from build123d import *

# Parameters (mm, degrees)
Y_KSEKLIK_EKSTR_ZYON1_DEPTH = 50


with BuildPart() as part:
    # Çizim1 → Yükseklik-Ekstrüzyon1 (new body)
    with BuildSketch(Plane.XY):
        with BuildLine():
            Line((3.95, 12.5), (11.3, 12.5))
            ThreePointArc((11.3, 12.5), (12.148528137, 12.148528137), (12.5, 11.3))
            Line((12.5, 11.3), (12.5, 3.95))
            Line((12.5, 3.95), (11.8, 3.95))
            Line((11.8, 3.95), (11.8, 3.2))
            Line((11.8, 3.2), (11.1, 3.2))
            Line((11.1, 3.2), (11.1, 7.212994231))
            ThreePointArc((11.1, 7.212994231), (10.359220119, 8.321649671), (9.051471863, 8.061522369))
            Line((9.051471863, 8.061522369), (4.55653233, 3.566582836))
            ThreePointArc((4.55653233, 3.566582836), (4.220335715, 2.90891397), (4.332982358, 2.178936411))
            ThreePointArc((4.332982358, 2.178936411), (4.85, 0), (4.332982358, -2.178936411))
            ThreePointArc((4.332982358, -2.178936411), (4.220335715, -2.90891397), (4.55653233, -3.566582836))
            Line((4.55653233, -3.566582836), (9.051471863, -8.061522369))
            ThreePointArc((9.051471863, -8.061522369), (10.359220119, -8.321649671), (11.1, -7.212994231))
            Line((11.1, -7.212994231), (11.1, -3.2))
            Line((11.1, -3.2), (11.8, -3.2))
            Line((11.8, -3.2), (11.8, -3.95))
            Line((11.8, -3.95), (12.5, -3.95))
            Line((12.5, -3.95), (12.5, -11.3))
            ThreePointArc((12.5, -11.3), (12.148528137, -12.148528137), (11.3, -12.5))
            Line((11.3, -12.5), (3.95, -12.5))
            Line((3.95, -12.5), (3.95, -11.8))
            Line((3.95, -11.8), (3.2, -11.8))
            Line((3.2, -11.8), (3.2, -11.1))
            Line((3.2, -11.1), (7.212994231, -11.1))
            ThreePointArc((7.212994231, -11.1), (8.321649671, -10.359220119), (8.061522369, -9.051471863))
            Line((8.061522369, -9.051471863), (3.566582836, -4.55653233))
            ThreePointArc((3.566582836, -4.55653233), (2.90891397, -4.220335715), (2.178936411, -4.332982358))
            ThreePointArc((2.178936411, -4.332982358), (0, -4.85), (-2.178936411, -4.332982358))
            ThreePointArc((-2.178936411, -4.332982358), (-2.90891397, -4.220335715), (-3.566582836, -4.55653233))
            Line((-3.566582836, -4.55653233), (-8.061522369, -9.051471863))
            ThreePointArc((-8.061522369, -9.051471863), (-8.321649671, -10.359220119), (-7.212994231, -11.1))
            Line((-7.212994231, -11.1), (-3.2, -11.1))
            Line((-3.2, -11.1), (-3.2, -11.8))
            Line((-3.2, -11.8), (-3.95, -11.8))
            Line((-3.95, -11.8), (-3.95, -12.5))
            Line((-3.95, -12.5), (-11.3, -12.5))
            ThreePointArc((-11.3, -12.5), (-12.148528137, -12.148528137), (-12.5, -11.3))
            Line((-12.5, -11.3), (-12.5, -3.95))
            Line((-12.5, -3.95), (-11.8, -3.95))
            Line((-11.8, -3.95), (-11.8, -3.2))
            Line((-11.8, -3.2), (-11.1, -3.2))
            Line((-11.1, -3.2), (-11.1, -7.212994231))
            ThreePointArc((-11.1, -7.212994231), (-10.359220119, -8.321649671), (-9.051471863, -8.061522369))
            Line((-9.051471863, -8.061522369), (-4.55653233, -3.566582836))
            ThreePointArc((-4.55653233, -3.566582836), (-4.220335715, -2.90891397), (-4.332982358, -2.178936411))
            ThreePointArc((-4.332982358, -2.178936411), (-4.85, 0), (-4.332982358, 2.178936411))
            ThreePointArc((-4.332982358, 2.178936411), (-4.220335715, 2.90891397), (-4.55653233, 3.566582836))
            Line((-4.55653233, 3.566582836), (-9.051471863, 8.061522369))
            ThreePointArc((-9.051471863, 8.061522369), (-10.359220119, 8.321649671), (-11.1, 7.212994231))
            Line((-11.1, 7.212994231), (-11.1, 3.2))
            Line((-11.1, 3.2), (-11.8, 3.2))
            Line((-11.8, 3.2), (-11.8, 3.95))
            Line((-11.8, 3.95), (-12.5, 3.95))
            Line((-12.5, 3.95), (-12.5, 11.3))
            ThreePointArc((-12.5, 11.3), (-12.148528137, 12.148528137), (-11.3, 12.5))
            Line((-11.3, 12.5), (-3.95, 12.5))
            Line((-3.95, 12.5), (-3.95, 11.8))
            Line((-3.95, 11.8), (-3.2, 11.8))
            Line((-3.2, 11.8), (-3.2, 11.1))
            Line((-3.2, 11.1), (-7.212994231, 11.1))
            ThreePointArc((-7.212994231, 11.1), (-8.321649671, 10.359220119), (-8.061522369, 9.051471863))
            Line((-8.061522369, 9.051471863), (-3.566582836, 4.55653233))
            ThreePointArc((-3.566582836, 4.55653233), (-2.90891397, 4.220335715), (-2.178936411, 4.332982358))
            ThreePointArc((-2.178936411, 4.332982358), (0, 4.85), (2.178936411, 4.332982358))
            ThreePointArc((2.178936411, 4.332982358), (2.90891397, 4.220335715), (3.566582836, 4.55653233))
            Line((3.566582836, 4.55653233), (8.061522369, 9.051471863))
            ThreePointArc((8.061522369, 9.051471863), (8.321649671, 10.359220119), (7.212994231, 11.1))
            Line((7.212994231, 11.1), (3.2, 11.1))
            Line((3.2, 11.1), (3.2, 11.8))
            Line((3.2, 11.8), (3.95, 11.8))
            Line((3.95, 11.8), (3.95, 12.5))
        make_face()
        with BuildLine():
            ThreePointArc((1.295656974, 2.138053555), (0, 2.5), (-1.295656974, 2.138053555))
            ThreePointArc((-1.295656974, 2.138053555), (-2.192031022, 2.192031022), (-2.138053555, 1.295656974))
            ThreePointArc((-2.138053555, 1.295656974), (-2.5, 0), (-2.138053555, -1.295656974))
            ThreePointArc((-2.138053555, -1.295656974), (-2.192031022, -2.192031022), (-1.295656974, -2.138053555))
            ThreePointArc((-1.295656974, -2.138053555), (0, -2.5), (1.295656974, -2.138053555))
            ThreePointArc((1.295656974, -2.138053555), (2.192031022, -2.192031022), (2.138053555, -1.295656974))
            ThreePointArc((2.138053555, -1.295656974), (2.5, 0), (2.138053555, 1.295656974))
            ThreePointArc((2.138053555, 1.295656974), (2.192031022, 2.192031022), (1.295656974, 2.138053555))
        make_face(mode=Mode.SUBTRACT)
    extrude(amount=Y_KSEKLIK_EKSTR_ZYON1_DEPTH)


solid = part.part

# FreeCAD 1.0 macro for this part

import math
import FreeCAD as App
import Part
import Sketcher
from FreeCAD import Vector
Q = App.Units.Quantity

doc = App.newDocument("Part")
body = doc.addObject("PartDesign::Body", "Body")

# Sketch on XY plane
sketch1 = body.newObject("Sketcher::SketchObject", "Sketch")
sketch1.AttachmentSupport = (doc.getObject("XY_Plane"), [""])
sketch1.MapMode = "FlatFace"
sketch1.addGeometry([
    Part.LineSegment(Vector(11.3, 12.5, 0), Vector(4, 12.5, 0)),  # 0
    Part.LineSegment(Vector(4, 12.5, 0), Vector(4, 11.8, 0)),  # 1
    Part.LineSegment(Vector(4, 11.8, 0), Vector(3.2, 11.8, 0)),  # 2
    Part.LineSegment(Vector(3.2, 11.8, 0), Vector(3.2, 11.1, 0)),  # 3
    Part.LineSegment(Vector(3.2, 11.1, 0), Vector(7.2, 11.1, 0)),  # 4
    Part.ArcOfCircle(Part.Circle(Vector(7.2, 9.9, 0), Vector(0, 0, 1), 1.2), math.radians(-45), math.radians(90)),  # 5
    Part.LineSegment(Vector(8.1, 9.1, 0), Vector(3.6, 4.6, 0)),  # 6
    Part.ArcOfCircle(Part.Circle(Vector(2.7, 5.4, 0), Vector(0, 0, 1), 1.2), math.radians(-117), math.radians(-45)),  # 7
    Part.ArcOfCircle(Part.Circle(Vector(0, 0, 0), Vector(0, 0, 1), 4.8), math.radians(63), math.radians(117)),  # 8
    Part.ArcOfCircle(Part.Circle(Vector(-2.7, 5.4, 0), Vector(0, 0, 1), 1.2), math.radians(-135), math.radians(-63)),  # 9
    Part.LineSegment(Vector(-3.6, 4.6, 0), Vector(-8.1, 9.1, 0)),  # 10
    Part.ArcOfCircle(Part.Circle(Vector(-7.2, 9.9, 0), Vector(0, 0, 1), 1.2), math.radians(90), math.radians(225)),  # 11
    Part.LineSegment(Vector(-7.2, 11.1, 0), Vector(-3.2, 11.1, 0)),  # 12
    Part.LineSegment(Vector(-3.2, 11.1, 0), Vector(-3.2, 11.8, 0)),  # 13
    Part.LineSegment(Vector(-3.2, 11.8, 0), Vector(-4, 11.8, 0)),  # 14
    Part.LineSegment(Vector(-4, 11.8, 0), Vector(-4, 12.5, 0)),  # 15
    Part.LineSegment(Vector(-4, 12.5, 0), Vector(-11.3, 12.5, 0)),  # 16
    Part.ArcOfCircle(Part.Circle(Vector(-11.3, 11.3, 0), Vector(0, 0, 1), 1.2), math.radians(90), math.radians(180)),  # 17
    Part.LineSegment(Vector(-12.5, 11.3, 0), Vector(-12.5, 4, 0)),  # 18
    Part.LineSegment(Vector(-12.5, 4, 0), Vector(-11.8, 4, 0)),  # 19
    Part.LineSegment(Vector(-11.8, 4, 0), Vector(-11.8, 3.2, 0)),  # 20
    Part.LineSegment(Vector(-11.8, 3.2, 0), Vector(-11.1, 3.2, 0)),  # 21
    Part.LineSegment(Vector(-11.1, 3.2, 0), Vector(-11.1, 7.2, 0)),  # 22
    Part.ArcOfCircle(Part.Circle(Vector(-9.9, 7.2, 0), Vector(0, 0, 1), 1.2), math.radians(45), math.radians(180)),  # 23
    Part.LineSegment(Vector(-9.1, 8.1, 0), Vector(-4.6, 3.6, 0)),  # 24
    Part.ArcOfCircle(Part.Circle(Vector(-5.4, 2.7, 0), Vector(0, 0, 1), 1.2), math.radians(-27), math.radians(45)),  # 25
    Part.ArcOfCircle(Part.Circle(Vector(0, 0, 0), Vector(0, 0, 1), 4.8), math.radians(153), math.radians(207)),  # 26
    Part.ArcOfCircle(Part.Circle(Vector(-5.4, -2.7, 0), Vector(0, 0, 1), 1.2), math.radians(-45), math.radians(27)),  # 27
    Part.LineSegment(Vector(-4.6, -3.6, 0), Vector(-9.1, -8.1, 0)),  # 28
    Part.ArcOfCircle(Part.Circle(Vector(-9.9, -7.2, 0), Vector(0, 0, 1), 1.2), math.radians(180), math.radians(315)),  # 29
    Part.LineSegment(Vector(-11.1, -7.2, 0), Vector(-11.1, -3.2, 0)),  # 30
    Part.LineSegment(Vector(-11.1, -3.2, 0), Vector(-11.8, -3.2, 0)),  # 31
    Part.LineSegment(Vector(-11.8, -3.2, 0), Vector(-11.8, -4, 0)),  # 32
    Part.LineSegment(Vector(-11.8, -4, 0), Vector(-12.5, -4, 0)),  # 33
    Part.LineSegment(Vector(-12.5, -4, 0), Vector(-12.5, -11.3, 0)),  # 34
    Part.ArcOfCircle(Part.Circle(Vector(-11.3, -11.3, 0), Vector(0, 0, 1), 1.2), math.radians(-180), math.radians(-90)),  # 35
    Part.LineSegment(Vector(-11.3, -12.5, 0), Vector(-4, -12.5, 0)),  # 36
    Part.LineSegment(Vector(-4, -12.5, 0), Vector(-4, -11.8, 0)),  # 37
    Part.LineSegment(Vector(-4, -11.8, 0), Vector(-3.2, -11.8, 0)),  # 38
    Part.LineSegment(Vector(-3.2, -11.8, 0), Vector(-3.2, -11.1, 0)),  # 39
    Part.LineSegment(Vector(-3.2, -11.1, 0), Vector(-7.2, -11.1, 0)),  # 40
    Part.ArcOfCircle(Part.Circle(Vector(-7.2, -9.9, 0), Vector(0, 0, 1), 1.2), math.radians(135), math.radians(270)),  # 41
    Part.LineSegment(Vector(-8.1, -9.1, 0), Vector(-3.6, -4.6, 0)),  # 42
    Part.ArcOfCircle(Part.Circle(Vector(-2.7, -5.4, 0), Vector(0, 0, 1), 1.2), math.radians(63), math.radians(135)),  # 43
    Part.ArcOfCircle(Part.Circle(Vector(0, 0, 0), Vector(0, 0, 1), 4.8), math.radians(-117), math.radians(-63)),  # 44
    Part.ArcOfCircle(Part.Circle(Vector(2.7, -5.4, 0), Vector(0, 0, 1), 1.2), math.radians(45), math.radians(117)),  # 45
    Part.LineSegment(Vector(3.6, -4.6, 0), Vector(8.1, -9.1, 0)),  # 46
    Part.ArcOfCircle(Part.Circle(Vector(7.2, -9.9, 0), Vector(0, 0, 1), 1.2), math.radians(-90), math.radians(45)),  # 47
    Part.LineSegment(Vector(7.2, -11.1, 0), Vector(3.2, -11.1, 0)),  # 48
    Part.LineSegment(Vector(3.2, -11.1, 0), Vector(3.2, -11.8, 0)),  # 49
    Part.LineSegment(Vector(3.2, -11.8, 0), Vector(4, -11.8, 0)),  # 50
    Part.LineSegment(Vector(4, -11.8, 0), Vector(4, -12.5, 0)),  # 51
    Part.LineSegment(Vector(4, -12.5, 0), Vector(11.3, -12.5, 0)),  # 52
    Part.ArcOfCircle(Part.Circle(Vector(11.3, -11.3, 0), Vector(0, 0, 1), 1.2), math.radians(-90), math.radians(0)),  # 53
    Part.LineSegment(Vector(12.5, -11.3, 0), Vector(12.5, -4, 0)),  # 54
    Part.LineSegment(Vector(12.5, -4, 0), Vector(11.8, -4, 0)),  # 55
    Part.LineSegment(Vector(11.8, -4, 0), Vector(11.8, -3.2, 0)),  # 56
    Part.LineSegment(Vector(11.8, -3.2, 0), Vector(11.1, -3.2, 0)),  # 57
    Part.LineSegment(Vector(11.1, -3.2, 0), Vector(11.1, -7.2, 0)),  # 58
    Part.ArcOfCircle(Part.Circle(Vector(9.9, -7.2, 0), Vector(0, 0, 1), 1.2), math.radians(-135), math.radians(0)),  # 59
    Part.LineSegment(Vector(9.1, -8.1, 0), Vector(4.6, -3.6, 0)),  # 60
    Part.ArcOfCircle(Part.Circle(Vector(5.4, -2.7, 0), Vector(0, 0, 1), 1.2), math.radians(153), math.radians(225)),  # 61
    Part.ArcOfCircle(Part.Circle(Vector(0, 0, 0), Vector(0, 0, 1), 4.8), math.radians(-27), math.radians(27)),  # 62
    Part.ArcOfCircle(Part.Circle(Vector(5.4, 2.7, 0), Vector(0, 0, 1), 1.2), math.radians(135), math.radians(207)),  # 63
    Part.LineSegment(Vector(4.6, 3.6, 0), Vector(9.1, 8.1, 0)),  # 64
    Part.ArcOfCircle(Part.Circle(Vector(9.9, 7.2, 0), Vector(0, 0, 1), 1.2), math.radians(0), math.radians(135)),  # 65
    Part.LineSegment(Vector(11.1, 7.2, 0), Vector(11.1, 3.2, 0)),  # 66
    Part.LineSegment(Vector(11.1, 3.2, 0), Vector(11.8, 3.2, 0)),  # 67
    Part.LineSegment(Vector(11.8, 3.2, 0), Vector(11.8, 4, 0)),  # 68
    Part.LineSegment(Vector(11.8, 4, 0), Vector(12.5, 4, 0)),  # 69
    Part.LineSegment(Vector(12.5, 4, 0), Vector(12.5, 11.3, 0)),  # 70
    Part.ArcOfCircle(Part.Circle(Vector(11.3, 11.3, 0), Vector(0, 0, 1), 1.2), math.radians(0), math.radians(90)),  # 71
    Part.ArcOfCircle(Part.Circle(Vector(1.8, 1.8, 0), Vector(0, 0, 1), 0.6), math.radians(-52), math.radians(142)),  # 72
    Part.ArcOfCircle(Part.Circle(Vector(0, 0, 0), Vector(0, 0, 1), 2.5), math.radians(-31), math.radians(31)),  # 73
    Part.ArcOfCircle(Part.Circle(Vector(1.8, -1.8, 0), Vector(0, 0, 1), 0.6), math.radians(-142), math.radians(52)),  # 74
    Part.ArcOfCircle(Part.Circle(Vector(0, 0, 0), Vector(0, 0, 1), 2.5), math.radians(-121), math.radians(-59)),  # 75
    Part.ArcOfCircle(Part.Circle(Vector(-1.8, -1.8, 0), Vector(0, 0, 1), 0.6), math.radians(128), math.radians(322)),  # 76
    Part.ArcOfCircle(Part.Circle(Vector(0, 0, 0), Vector(0, 0, 1), 2.5), math.radians(149), math.radians(211)),  # 77
    Part.ArcOfCircle(Part.Circle(Vector(-1.8, 1.8, 0), Vector(0, 0, 1), 0.6), math.radians(38), math.radians(232)),  # 78
    Part.ArcOfCircle(Part.Circle(Vector(0, 0, 0), Vector(0, 0, 1), 2.5), math.radians(59), math.radians(121)),  # 79
], False)
sketch1.addConstraint([
    Sketcher.Constraint("Coincident", 0, 2, 1, 1),
    Sketcher.Constraint("Coincident", 1, 2, 2, 1),
    Sketcher.Constraint("Coincident", 2, 2, 3, 1),
    Sketcher.Constraint("Coincident", 3, 2, 4, 1),
    Sketcher.Constraint("Tangent", 4, 2, 5, 2),
    Sketcher.Constraint("Tangent", 5, 1, 6, 1),
    Sketcher.Constraint("Tangent", 6, 2, 7, 2),
    Sketcher.Constraint("Tangent", 7, 1, 8, 1),
    Sketcher.Constraint("Tangent", 8, 2, 9, 2),
    Sketcher.Constraint("Tangent", 9, 1, 10, 1),
    Sketcher.Constraint("Tangent", 10, 2, 11, 2),
    Sketcher.Constraint("Tangent", 11, 1, 12, 1),
    Sketcher.Constraint("Coincident", 12, 2, 13, 1),
    Sketcher.Constraint("Coincident", 13, 2, 14, 1),
    Sketcher.Constraint("Coincident", 14, 2, 15, 1),
    Sketcher.Constraint("Coincident", 15, 2, 16, 1),
    Sketcher.Constraint("Tangent", 16, 2, 17, 1),
    Sketcher.Constraint("Tangent", 17, 2, 18, 1),
    Sketcher.Constraint("Coincident", 18, 2, 19, 1),
    Sketcher.Constraint("Coincident", 19, 2, 20, 1),
    Sketcher.Constraint("Coincident", 20, 2, 21, 1),
    Sketcher.Constraint("Coincident", 21, 2, 22, 1),
    Sketcher.Constraint("Tangent", 22, 2, 23, 2),
    Sketcher.Constraint("Tangent", 23, 1, 24, 1),
    Sketcher.Constraint("Tangent", 24, 2, 25, 2),
    Sketcher.Constraint("Tangent", 25, 1, 26, 1),
    Sketcher.Constraint("Tangent", 26, 2, 27, 2),
    Sketcher.Constraint("Tangent", 27, 1, 28, 1),
    Sketcher.Constraint("Tangent", 28, 2, 29, 2),
    Sketcher.Constraint("Tangent", 29, 1, 30, 1),
    Sketcher.Constraint("Coincident", 30, 2, 31, 1),
    Sketcher.Constraint("Coincident", 31, 2, 32, 1),
    Sketcher.Constraint("Coincident", 32, 2, 33, 1),
    Sketcher.Constraint("Coincident", 33, 2, 34, 1),
    Sketcher.Constraint("Tangent", 34, 2, 35, 1),
    Sketcher.Constraint("Tangent", 35, 2, 36, 1),
    Sketcher.Constraint("Coincident", 36, 2, 37, 1),
    Sketcher.Constraint("Coincident", 37, 2, 38, 1),
    Sketcher.Constraint("Coincident", 38, 2, 39, 1),
    Sketcher.Constraint("Coincident", 39, 2, 40, 1),
    Sketcher.Constraint("Tangent", 40, 2, 41, 2),
    Sketcher.Constraint("Tangent", 41, 1, 42, 1),
    Sketcher.Constraint("Tangent", 42, 2, 43, 2),
    Sketcher.Constraint("Tangent", 43, 1, 44, 1),
    Sketcher.Constraint("Tangent", 44, 2, 45, 2),
    Sketcher.Constraint("Tangent", 45, 1, 46, 1),
    Sketcher.Constraint("Tangent", 46, 2, 47, 2),
    Sketcher.Constraint("Tangent", 47, 1, 48, 1),
    Sketcher.Constraint("Coincident", 48, 2, 49, 1),
    Sketcher.Constraint("Coincident", 49, 2, 50, 1),
    Sketcher.Constraint("Coincident", 50, 2, 51, 1),
    Sketcher.Constraint("Coincident", 51, 2, 52, 1),
    Sketcher.Constraint("Tangent", 52, 2, 53, 1),
    Sketcher.Constraint("Tangent", 53, 2, 54, 1),
    Sketcher.Constraint("Coincident", 54, 2, 55, 1),
    Sketcher.Constraint("Coincident", 55, 2, 56, 1),
    Sketcher.Constraint("Coincident", 56, 2, 57, 1),
    Sketcher.Constraint("Coincident", 57, 2, 58, 1),
    Sketcher.Constraint("Tangent", 58, 2, 59, 2),
    Sketcher.Constraint("Tangent", 59, 1, 60, 1),
    Sketcher.Constraint("Tangent", 60, 2, 61, 2),
    Sketcher.Constraint("Tangent", 61, 1, 62, 1),
    Sketcher.Constraint("Tangent", 62, 2, 63, 2),
    Sketcher.Constraint("Tangent", 63, 1, 64, 1),
    Sketcher.Constraint("Tangent", 64, 2, 65, 2),
    Sketcher.Constraint("Tangent", 65, 1, 66, 1),
    Sketcher.Constraint("Coincident", 66, 2, 67, 1),
    Sketcher.Constraint("Coincident", 67, 2, 68, 1),
    Sketcher.Constraint("Coincident", 68, 2, 69, 1),
    Sketcher.Constraint("Coincident", 69, 2, 70, 1),
    Sketcher.Constraint("Tangent", 70, 2, 71, 1),
    Sketcher.Constraint("Tangent", 71, 2, 0, 1),
    Sketcher.Constraint("Coincident", 72, 1, 73, 2),
    Sketcher.Constraint("Coincident", 73, 1, 74, 2),
    Sketcher.Constraint("Coincident", 74, 1, 75, 2),
    Sketcher.Constraint("Coincident", 75, 1, 76, 2),
    Sketcher.Constraint("Coincident", 76, 1, 77, 2),
    Sketcher.Constraint("Coincident", 77, 1, 78, 2),
    Sketcher.Constraint("Coincident", 78, 1, 79, 2),
    Sketcher.Constraint("Coincident", 79, 1, 72, 2),
    Sketcher.Constraint("Horizontal", 0),
    Sketcher.Constraint("Vertical", 1),
    Sketcher.Constraint("Horizontal", 2),
    Sketcher.Constraint("Vertical", 3),
    Sketcher.Constraint("Horizontal", 4),
    Sketcher.Constraint("Horizontal", 12),
    Sketcher.Constraint("Vertical", 13),
    Sketcher.Constraint("Horizontal", 14),
    Sketcher.Constraint("Vertical", 15),
    Sketcher.Constraint("Horizontal", 16),
    Sketcher.Constraint("Vertical", 18),
    Sketcher.Constraint("Horizontal", 19),
    Sketcher.Constraint("Vertical", 20),
    Sketcher.Constraint("Horizontal", 21),
    Sketcher.Constraint("Vertical", 22),
    Sketcher.Constraint("Vertical", 30),
    Sketcher.Constraint("Horizontal", 31),
    Sketcher.Constraint("Vertical", 32),
    Sketcher.Constraint("Horizontal", 33),
    Sketcher.Constraint("Vertical", 34),
    Sketcher.Constraint("Horizontal", 36),
    Sketcher.Constraint("Vertical", 37),
    Sketcher.Constraint("Horizontal", 38),
    Sketcher.Constraint("Vertical", 39),
    Sketcher.Constraint("Horizontal", 40),
    Sketcher.Constraint("Horizontal", 48),
    Sketcher.Constraint("Vertical", 49),
    Sketcher.Constraint("Horizontal", 50),
    Sketcher.Constraint("Vertical", 51),
    Sketcher.Constraint("Horizontal", 52),
    Sketcher.Constraint("Vertical", 54),
    Sketcher.Constraint("Horizontal", 55),
    Sketcher.Constraint("Vertical", 56),
    Sketcher.Constraint("Horizontal", 57),
    Sketcher.Constraint("Vertical", 58),
    Sketcher.Constraint("Vertical", 66),
    Sketcher.Constraint("Horizontal", 67),
    Sketcher.Constraint("Vertical", 68),
    Sketcher.Constraint("Horizontal", 69),
    Sketcher.Constraint("Vertical", 70),
    Sketcher.Constraint("Coincident", 8, 3, -1, 1),
    Sketcher.Constraint("Coincident", 26, 3, -1, 1),
    Sketcher.Constraint("Coincident", 44, 3, -1, 1),
    Sketcher.Constraint("Coincident", 62, 3, -1, 1),
    Sketcher.Constraint("Coincident", 73, 3, -1, 1),
    Sketcher.Constraint("Coincident", 75, 3, -1, 1),
    Sketcher.Constraint("Coincident", 77, 3, -1, 1),
    Sketcher.Constraint("Coincident", 79, 3, -1, 1),
    Sketcher.Constraint("Equal", 5, 7),
    Sketcher.Constraint("Equal", 7, 9),
    Sketcher.Constraint("Equal", 9, 11),
    Sketcher.Constraint("Equal", 11, 17),
    Sketcher.Constraint("Equal", 17, 23),
    Sketcher.Constraint("Equal", 23, 25),
    Sketcher.Constraint("Equal", 8, 26),
    Sketcher.Constraint("Equal", 25, 27),
    Sketcher.Constraint("Equal", 27, 29),
    Sketcher.Constraint("Equal", 29, 35),
    Sketcher.Constraint("Equal", 35, 41),
    Sketcher.Constraint("Equal", 41, 43),
    Sketcher.Constraint("Equal", 26, 44),
    Sketcher.Constraint("Equal", 43, 45),
    Sketcher.Constraint("Equal", 45, 47),
    Sketcher.Constraint("Equal", 47, 53),
    Sketcher.Constraint("Equal", 53, 59),
    Sketcher.Constraint("Equal", 59, 61),
    Sketcher.Constraint("Equal", 44, 62),
    Sketcher.Constraint("Equal", 61, 63),
    Sketcher.Constraint("Equal", 63, 65),
    Sketcher.Constraint("Equal", 65, 71),
    Sketcher.Constraint("Equal", 72, 74),
    Sketcher.Constraint("Equal", 73, 75),
    Sketcher.Constraint("Equal", 74, 76),
    Sketcher.Constraint("Equal", 75, 77),
    Sketcher.Constraint("Equal", 76, 78),
    Sketcher.Constraint("Equal", 77, 79),
    Sketcher.Constraint("Symmetric", 5, 3, 41, 3, -1, 1),
    Sketcher.Constraint("Symmetric", 11, 3, 47, 3, -1, 1),
    Sketcher.Constraint("Symmetric", 17, 3, 53, 3, -1, 1),
    Sketcher.Constraint("Symmetric", 23, 3, 59, 3, -1, 1),
    Sketcher.Constraint("Symmetric", 29, 3, 65, 3, -1, 1),
    Sketcher.Constraint("Symmetric", 35, 3, 71, 3, -1, 1),
    Sketcher.Constraint("Symmetric", 72, 3, 76, 3, -1, 1),
    Sketcher.Constraint("Symmetric", 74, 3, 78, 3, -1, 1),
    Sketcher.Constraint("Symmetric", 1, 2, 37, 2, -1, 1),
    Sketcher.Constraint("Symmetric", 13, 2, 49, 2, -1, 1),
    Sketcher.Constraint("Symmetric", 19, 2, 55, 2, -1, 1),
    Sketcher.Constraint("Symmetric", 31, 2, 67, 2, -1, 1),
    Sketcher.Constraint("Symmetric", 5, 3, 11, 3, -2),
    Sketcher.Constraint("Symmetric", 35, 3, 53, 3, -2),
    Sketcher.Constraint("Symmetric", 29, 3, 59, 3, -2),
    Sketcher.Constraint("Symmetric", 74, 3, 76, 3, -2),
    Sketcher.Constraint("Symmetric", 2, 2, 13, 2, -2),
    Sketcher.Constraint("Symmetric", 32, 2, 55, 2, -2),
    Sketcher.Constraint("Perpendicular", 6, 10),
    Sketcher.Constraint("Parallel", 10, 24),
    Sketcher.Constraint("Perpendicular", 24, 28),
    Sketcher.Constraint("Parallel", 28, 42),
    Sketcher.Constraint("Perpendicular", 42, 46),
    Sketcher.Constraint("Parallel", 46, 60),
    Sketcher.Constraint("Perpendicular", 60, 64),
    Sketcher.Constraint("Horizontal", 7, 3, 9, 3),
    Sketcher.Constraint("Horizontal", 31, 2, 56, 2),
    Sketcher.Constraint("Horizontal", 21, 2, 66, 2),
    Sketcher.Constraint("Horizontal", 19, 2, 68, 2),
    Sketcher.Constraint("Vertical", 15, 2, 36, 2),
    Sketcher.Constraint("Vertical", 13, 2, 38, 2),
    Sketcher.Constraint("Vertical", 1, 2, 50, 2),
    Sketcher.Constraint("Equal", 19, 21),
    Sketcher.Constraint("Equal", 69, 1),
    Sketcher.Constraint("Equal", 1, 3),
    Sketcher.Constraint("Equal", 52, 18),
    Sketcher.Constraint("Equal", 50, 20),
    Sketcher.Constraint("Equal", 48, 22),
    Sketcher.Constraint("Equal", 10, 24),
    Sketcher.Constraint("Radius", 5, Q("1.2 mm")),
    Sketcher.Constraint("Radius", 72, Q("0.6 mm")),
    Sketcher.Constraint("Radius", 73, Q("2.5 mm")),
    Sketcher.Constraint("Radius", 8, Q("4.85 mm")),
    Sketcher.Constraint("DistanceX", 19, 1, 19, 2, Q("0.7 mm")),
    Sketcher.Constraint("DistanceX", 0, 2, 0, 1, Q("7.35 mm")),
    Sketcher.Constraint("DistanceX", 2, 2, 2, 1, Q("0.75 mm")),
    Sketcher.Constraint("DistanceY", -1, 1, 5, 3, Q("9.9 mm")),
    Sketcher.Constraint("DistanceX", 4, 1, 4, 2, Q("4.012994 mm")),
    Sketcher.Constraint("DistanceX", -1, 1, 72, 3, Q("1.767767 mm")),
    Sketcher.Constraint("DistanceY", -1, 1, 72, 3, Q("1.767767 mm")),
])
pad1 = body.newObject("PartDesign::Pad", "Pad")
pad1.Profile = sketch1
pad1.Length = 50

doc.recompute()
